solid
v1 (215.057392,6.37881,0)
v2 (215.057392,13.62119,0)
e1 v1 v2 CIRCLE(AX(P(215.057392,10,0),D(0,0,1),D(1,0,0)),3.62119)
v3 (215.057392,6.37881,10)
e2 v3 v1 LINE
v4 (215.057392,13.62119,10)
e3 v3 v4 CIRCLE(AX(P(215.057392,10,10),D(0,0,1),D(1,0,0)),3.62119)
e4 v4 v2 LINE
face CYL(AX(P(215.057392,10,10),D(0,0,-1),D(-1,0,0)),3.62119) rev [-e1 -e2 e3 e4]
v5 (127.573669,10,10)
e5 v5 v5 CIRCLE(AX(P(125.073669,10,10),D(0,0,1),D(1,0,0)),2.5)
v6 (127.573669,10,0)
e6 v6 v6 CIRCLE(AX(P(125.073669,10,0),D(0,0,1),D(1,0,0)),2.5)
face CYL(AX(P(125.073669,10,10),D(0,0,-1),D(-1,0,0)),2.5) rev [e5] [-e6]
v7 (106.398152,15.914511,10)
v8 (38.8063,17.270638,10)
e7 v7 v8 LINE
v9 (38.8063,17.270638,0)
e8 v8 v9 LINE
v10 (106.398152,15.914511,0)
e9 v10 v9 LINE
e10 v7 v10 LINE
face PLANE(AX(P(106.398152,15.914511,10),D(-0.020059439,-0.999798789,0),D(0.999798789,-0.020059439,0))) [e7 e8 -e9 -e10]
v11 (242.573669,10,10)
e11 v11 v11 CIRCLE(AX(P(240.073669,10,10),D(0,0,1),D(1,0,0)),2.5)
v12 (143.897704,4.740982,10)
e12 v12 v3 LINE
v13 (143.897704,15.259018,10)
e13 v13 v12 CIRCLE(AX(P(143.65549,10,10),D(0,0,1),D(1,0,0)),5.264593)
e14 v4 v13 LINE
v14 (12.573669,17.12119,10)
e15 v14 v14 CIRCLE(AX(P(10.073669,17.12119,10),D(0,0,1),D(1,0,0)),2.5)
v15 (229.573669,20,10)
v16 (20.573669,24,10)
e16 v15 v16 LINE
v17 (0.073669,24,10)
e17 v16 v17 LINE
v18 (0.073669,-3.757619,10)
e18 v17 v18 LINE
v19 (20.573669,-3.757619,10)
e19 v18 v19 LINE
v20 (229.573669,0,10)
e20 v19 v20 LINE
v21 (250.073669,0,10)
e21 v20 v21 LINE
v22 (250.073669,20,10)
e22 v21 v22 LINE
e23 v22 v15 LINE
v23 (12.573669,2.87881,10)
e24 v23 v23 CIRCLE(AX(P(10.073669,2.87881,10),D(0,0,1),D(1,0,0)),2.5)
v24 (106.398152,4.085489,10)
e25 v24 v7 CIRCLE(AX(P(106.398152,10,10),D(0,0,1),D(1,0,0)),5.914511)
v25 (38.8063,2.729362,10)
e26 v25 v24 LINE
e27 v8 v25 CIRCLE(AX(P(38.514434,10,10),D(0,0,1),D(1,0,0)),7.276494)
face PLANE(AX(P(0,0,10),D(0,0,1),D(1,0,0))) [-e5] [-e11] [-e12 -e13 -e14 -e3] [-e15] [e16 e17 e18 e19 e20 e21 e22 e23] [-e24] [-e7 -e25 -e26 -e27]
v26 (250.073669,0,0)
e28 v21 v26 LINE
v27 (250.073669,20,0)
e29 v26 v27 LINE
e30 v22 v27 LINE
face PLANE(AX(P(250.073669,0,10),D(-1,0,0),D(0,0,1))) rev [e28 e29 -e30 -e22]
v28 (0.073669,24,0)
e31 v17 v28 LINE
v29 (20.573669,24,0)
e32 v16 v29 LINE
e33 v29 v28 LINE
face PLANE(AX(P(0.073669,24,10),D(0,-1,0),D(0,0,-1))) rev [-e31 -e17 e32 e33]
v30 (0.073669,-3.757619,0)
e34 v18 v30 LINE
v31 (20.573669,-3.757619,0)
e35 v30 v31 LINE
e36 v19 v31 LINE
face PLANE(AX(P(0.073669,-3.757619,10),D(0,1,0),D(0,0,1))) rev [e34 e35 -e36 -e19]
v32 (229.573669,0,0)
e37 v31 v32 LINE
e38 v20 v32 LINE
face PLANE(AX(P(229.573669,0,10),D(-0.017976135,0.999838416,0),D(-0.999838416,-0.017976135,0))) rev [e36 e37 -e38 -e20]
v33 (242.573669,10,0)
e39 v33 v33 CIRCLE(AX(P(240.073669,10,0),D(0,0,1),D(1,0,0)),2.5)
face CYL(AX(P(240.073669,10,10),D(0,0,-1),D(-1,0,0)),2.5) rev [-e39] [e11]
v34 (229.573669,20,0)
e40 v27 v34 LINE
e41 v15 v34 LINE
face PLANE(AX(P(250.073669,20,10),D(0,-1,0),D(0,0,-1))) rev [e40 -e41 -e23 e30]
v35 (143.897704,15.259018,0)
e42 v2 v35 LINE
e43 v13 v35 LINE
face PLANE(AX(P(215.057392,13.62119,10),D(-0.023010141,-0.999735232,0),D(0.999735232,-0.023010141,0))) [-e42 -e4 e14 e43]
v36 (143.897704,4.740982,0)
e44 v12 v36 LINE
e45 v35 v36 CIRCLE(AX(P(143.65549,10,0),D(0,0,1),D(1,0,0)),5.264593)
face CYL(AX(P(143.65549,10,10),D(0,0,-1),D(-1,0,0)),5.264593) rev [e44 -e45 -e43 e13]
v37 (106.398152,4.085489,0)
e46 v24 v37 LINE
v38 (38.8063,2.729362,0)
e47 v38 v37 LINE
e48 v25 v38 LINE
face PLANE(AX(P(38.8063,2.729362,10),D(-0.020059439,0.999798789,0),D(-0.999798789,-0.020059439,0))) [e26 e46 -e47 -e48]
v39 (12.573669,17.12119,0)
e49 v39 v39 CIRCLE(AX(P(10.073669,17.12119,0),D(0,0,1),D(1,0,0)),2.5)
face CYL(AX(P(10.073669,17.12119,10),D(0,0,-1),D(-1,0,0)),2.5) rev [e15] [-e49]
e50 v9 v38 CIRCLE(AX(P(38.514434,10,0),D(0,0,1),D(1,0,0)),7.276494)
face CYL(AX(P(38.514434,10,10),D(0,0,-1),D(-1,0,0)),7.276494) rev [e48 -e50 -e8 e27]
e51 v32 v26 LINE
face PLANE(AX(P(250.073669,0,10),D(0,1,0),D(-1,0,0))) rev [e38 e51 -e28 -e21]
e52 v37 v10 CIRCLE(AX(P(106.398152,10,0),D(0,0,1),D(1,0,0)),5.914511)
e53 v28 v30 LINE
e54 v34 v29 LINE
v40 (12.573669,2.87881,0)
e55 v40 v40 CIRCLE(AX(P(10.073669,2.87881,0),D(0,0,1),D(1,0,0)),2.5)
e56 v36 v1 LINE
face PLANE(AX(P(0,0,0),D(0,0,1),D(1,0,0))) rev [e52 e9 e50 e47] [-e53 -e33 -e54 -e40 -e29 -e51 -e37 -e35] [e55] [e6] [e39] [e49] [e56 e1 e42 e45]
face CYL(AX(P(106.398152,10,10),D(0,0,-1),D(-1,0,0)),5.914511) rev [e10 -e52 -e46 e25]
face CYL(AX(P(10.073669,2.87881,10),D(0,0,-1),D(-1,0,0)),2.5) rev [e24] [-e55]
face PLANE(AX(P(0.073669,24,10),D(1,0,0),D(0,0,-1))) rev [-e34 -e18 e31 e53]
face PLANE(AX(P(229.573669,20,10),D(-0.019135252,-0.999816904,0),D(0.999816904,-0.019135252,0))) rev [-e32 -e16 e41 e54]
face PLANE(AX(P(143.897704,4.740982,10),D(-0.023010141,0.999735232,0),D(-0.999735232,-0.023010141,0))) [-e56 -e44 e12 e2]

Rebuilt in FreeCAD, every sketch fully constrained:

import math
import FreeCAD as App
import Part
import Sketcher
Q = App.Units.Quantity


def add_polygon(sketch, points):
    """Adds a closed chain of lines whose ends are joined by coincident constraints."""
    first, n = sketch.GeometryCount, len(points)
    for a, b in zip(points, points[1:] + points[:1]):
        sketch.addGeometry(Part.LineSegment(App.Vector(*a, 0), App.Vector(*b, 0)), False)
    for i in range(n):
        sketch.addConstraint(Sketcher.Constraint("Coincident", first + i, 2, first + (i + 1) % n, 1))

doc = App.newDocument("Part")
params = doc.addObject("Spreadsheet::Sheet", "Params")
for row, (alias, value) in enumerate([
    ("sketch1_diameter", "5 mm"),
    ("sketch1_height", "20 mm"),
    ("sketch1_width", "20.5 mm"),
    ("pad1_length", "10 mm"),
], start=1):
    params.set(f"A{row}", alias)
    params.set(f"B{row}", "=" + value)
    params.setAlias(f"B{row}", alias)

body = doc.addObject("PartDesign::Body", "Body")

sketch1 = body.newObject("Sketcher::SketchObject", "Sketch")
sketch1.AttachmentSupport = (doc.getObject("XY_Plane"), [""])
sketch1.MapMode = "FlatFace"
add_polygon(sketch1, [(229.573669, 20), (20.573669, 24), (0.073669, 24), (0.073669, -3.757619), (20.573669, -3.757619), (229.573669, 0), (250.073669, 0), (250.073669, 20)])
sketch1.addGeometry(Part.Circle(App.Vector(10.073669, 2.87881, 0), App.Vector(0, 0, 1), 2.5), False)
sketch1.addGeometry(Part.LineSegment(App.Vector(38.8063, 17.270638, 0), App.Vector(106.398152, 15.914511, 0)), False)
sketch1.addGeometry(Part.ArcOfCircle(Part.Circle(App.Vector(106.398152, 10, 0), App.Vector(0, 0, 1), 5.914511), math.radians(-90), math.radians(90)), False)
sketch1.addGeometry(Part.LineSegment(App.Vector(106.398152, 4.085489, 0), App.Vector(38.8063, 2.729362, 0)), False)
sketch1.addGeometry(Part.ArcOfCircle(Part.Circle(App.Vector(38.514434, 10, 0), App.Vector(0, 0, 1), 7.276494), math.radians(87.701203), math.radians(272.298797)), False)
sketch1.addGeometry(Part.Circle(App.Vector(10.073669, 17.12119, 0), App.Vector(0, 0, 1), 2.5), False)
sketch1.addGeometry(Part.Circle(App.Vector(125.073669, 10, 0), App.Vector(0, 0, 1), 2.5), False)
sketch1.addGeometry(Part.LineSegment(App.Vector(143.897704, 15.259018, 0), App.Vector(215.057392, 13.62119, 0)), False)
sketch1.addGeometry(Part.ArcOfCircle(Part.Circle(App.Vector(215.057392, 10, 0), App.Vector(0, 0, 1), 3.62119), math.radians(-90), math.radians(90)), False)
sketch1.addGeometry(Part.LineSegment(App.Vector(215.057392, 6.37881, 0), App.Vector(143.897704, 4.740982, 0)), False)
sketch1.addGeometry(Part.ArcOfCircle(Part.Circle(App.Vector(143.65549, 10, 0), App.Vector(0, 0, 1), 5.264593), math.radians(87.362999), math.radians(272.637001)), False)
sketch1.addGeometry(Part.Circle(App.Vector(240.073669, 10, 0), App.Vector(0, 0, 1), 2.5), False)
sketch1.addConstraint(Sketcher.Constraint("Coincident", 9, 2, 10, 2))
sketch1.addConstraint(Sketcher.Constraint("Coincident", 10, 1, 11, 1))
sketch1.addConstraint(Sketcher.Constraint("Coincident", 11, 2, 12, 2))
sketch1.addConstraint(Sketcher.Constraint("Coincident", 12, 1, 9, 1))
sketch1.addConstraint(Sketcher.Constraint("Coincident", 15, 2, 16, 2))
sketch1.addConstraint(Sketcher.Constraint("Coincident", 16, 1, 17, 1))
sketch1.addConstraint(Sketcher.Constraint("Coincident", 17, 2, 18, 2))
sketch1.addConstraint(Sketcher.Constraint("Coincident", 18, 1, 15, 1))
sketch1.addConstraint(Sketcher.Constraint("Horizontal", 1))
sketch1.addConstraint(Sketcher.Constraint("Vertical", 2))
sketch1.addConstraint(Sketcher.Constraint("Horizontal", 3))
sketch1.addConstraint(Sketcher.Constraint("Horizontal", 5))
sketch1.addConstraint(Sketcher.Constraint("Vertical", 6))
sketch1.addConstraint(Sketcher.Constraint("Horizontal", 7))
sketch1.addConstraint(Sketcher.Constraint("Equal", 8, 13))
sketch1.addConstraint(Sketcher.Constraint("Equal", 13, 14))
sketch1.addConstraint(Sketcher.Constraint("Equal", 14, 19))
sketch1.addConstraint(Sketcher.Constraint("PointOnObject", 4, 2, -1))
sketch1.addConstraint(Sketcher.Constraint("Horizontal", 10, 3, 12, 3))
sketch1.addConstraint(Sketcher.Constraint("Horizontal", 12, 3, 14, 3))
sketch1.addConstraint(Sketcher.Constraint("Horizontal", 14, 3, 16, 3))
sketch1.addConstraint(Sketcher.Constraint("Horizontal", 16, 3, 18, 3))
sketch1.addConstraint(Sketcher.Constraint("Horizontal", 18, 3, 19, 3))
sketch1.addConstraint(Sketcher.Constraint("Vertical", 8, 3, 13, 3))
sketch1.addConstraint(Sketcher.Constraint("Vertical", 0, 2, 3, 2))
sketch1.addConstraint(Sketcher.Constraint("Vertical", 4, 2, 7, 2))
sketch1.addConstraint(Sketcher.Constraint("Vertical", 10, 3, 9, 2))
sketch1.addConstraint(Sketcher.Constraint("Vertical", 9, 2, 10, 1))
sketch1.addConstraint(Sketcher.Constraint("Vertical", 11, 2, 12, 1))
sketch1.addConstraint(Sketcher.Constraint("Vertical", 16, 3, 15, 2))
sketch1.addConstraint(Sketcher.Constraint("Vertical", 15, 2, 16, 1))
sketch1.addConstraint(Sketcher.Constraint("Vertical", 17, 2, 18, 1))
sketch1.addConstraint(Sketcher.Constraint("Equal", 3, 5))
sketch1.addConstraint(Sketcher.Constraint("Diameter", 8, 5.0))
sketch1.addConstraint(Sketcher.Constraint("DistanceY", 6, 1, 6, 2, 20.0))
sketch1.addConstraint(Sketcher.Constraint("DistanceX", 1, 2, 1, 1, 20.5))
sketch1.addConstraint(Sketcher.Constraint("DistanceY", -1, 1, 10, 3, 10.0))
sketch1.addConstraint(Sketcher.Constraint("DistanceY", -1, 1, 0, 2, 24.0))
sketch1.addConstraint(Sketcher.Constraint("DistanceX", 8, 3, 14, 3, 115.0))
sketch1.addConstraint(Sketcher.Constraint("DistanceX", 14, 3, 19, 3, 115.0))
sketch1.addConstraint(Sketcher.Constraint("DistanceX", 1, 2, 13, 3, 10.0))
sketch1.addConstraint(Sketcher.Constraint("DistanceX", 19, 3, 5, 2, 10.0))
sketch1.addConstraint(Sketcher.Constraint("Angle", 4, Q("1.030012 deg")))
sketch1.addConstraint(Sketcher.Constraint("Radius", 10, 5.914511))
sketch1.addConstraint(Sketcher.Constraint("Radius", 16, 3.62119))
sketch1.addConstraint(Sketcher.Constraint("Radius", 12, 7.276494))
sketch1.addConstraint(Sketcher.Constraint("Radius", 18, 5.264593))
sketch1.addConstraint(Sketcher.Constraint("DistanceX", -1, 1, 11, 2, 38.8063))
sketch1.addConstraint(Sketcher.Constraint("DistanceX", 18, 3, 16, 3, 71.401902))
sketch1.addConstraint(Sketcher.Constraint("DistanceX", -1, 1, 8, 3, 10.073669))
sketch1.addConstraint(Sketcher.Constraint("DistanceY", -1, 1, 8, 3, 2.87881))
sketch1.addConstraint(Sketcher.Constraint("DistanceY", -1, 1, 13, 3, 17.12119))
sketch1.addConstraint(Sketcher.Constraint("DistanceX", -1, 1, 16, 3, 215.057392))
sketch1.addConstraint(Sketcher.Constraint("DistanceY", -1, 1, 17, 2, 4.740982))
sketch1.addConstraint(Sketcher.Constraint("DistanceX", 10, 3, 16, 3, 108.659239))
sketch1.addConstraint(Sketcher.Constraint("DistanceY", 3, 2, 11, 2, 6.486981))
sketch1.setExpression("Constraints[41]", "Params.sketch1_diameter")
sketch1.setExpression("Constraints[42]", "Params.sketch1_height")
sketch1.setExpression("Constraints[43]", "Params.sketch1_width")
pad1 = body.newObject("PartDesign::Pad", "Pad")
pad1.Profile = sketch1
pad1.setExpression("Length", "Params.pad1_length")

doc.recompute()
